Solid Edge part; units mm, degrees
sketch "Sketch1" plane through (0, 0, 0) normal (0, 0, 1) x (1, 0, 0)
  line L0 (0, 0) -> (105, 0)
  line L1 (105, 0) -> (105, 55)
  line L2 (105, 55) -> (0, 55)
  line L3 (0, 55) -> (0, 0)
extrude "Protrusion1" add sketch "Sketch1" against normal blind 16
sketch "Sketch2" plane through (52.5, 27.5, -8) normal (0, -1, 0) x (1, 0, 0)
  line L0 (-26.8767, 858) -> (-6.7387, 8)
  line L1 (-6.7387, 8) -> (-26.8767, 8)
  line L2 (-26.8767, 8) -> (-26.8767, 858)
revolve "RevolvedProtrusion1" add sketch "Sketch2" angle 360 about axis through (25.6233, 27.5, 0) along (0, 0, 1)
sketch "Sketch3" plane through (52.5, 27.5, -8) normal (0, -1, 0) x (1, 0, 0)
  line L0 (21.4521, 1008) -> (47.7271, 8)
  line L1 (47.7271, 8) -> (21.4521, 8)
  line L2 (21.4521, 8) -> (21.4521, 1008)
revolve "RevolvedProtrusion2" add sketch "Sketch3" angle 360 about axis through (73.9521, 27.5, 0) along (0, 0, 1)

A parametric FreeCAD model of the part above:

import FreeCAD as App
import Part
import Sketcher

V = App.Vector
Q = App.Units.Quantity

doc = App.newDocument("Part")
body = doc.addObject("PartDesign::Body", "Body")

# Sketch on XY plane
sketch1 = doc.addObject("Sketcher::SketchObject", "Sketch")
body.addObject(sketch1)
sketch1.AttachmentSupport = (doc.XY_Plane, [""])
sketch1.MapMode = "FlatFace"
sketch1.addGeometry(Part.LineSegment(V(0, 55, 0), V(0, 0, 0)), False)
sketch1.addGeometry(Part.LineSegment(V(0, 0, 0), V(105, 0, 0)), False)
sketch1.addGeometry(Part.LineSegment(V(105, 0, 0), V(105, 55, 0)), False)
sketch1.addGeometry(Part.LineSegment(V(105, 55, 0), V(0, 55, 0)), False)
sketch1.addConstraint(Sketcher.Constraint("Coincident", 0, 2, 1, 1))
sketch1.addConstraint(Sketcher.Constraint("Coincident", 1, 2, 2, 1))
sketch1.addConstraint(Sketcher.Constraint("Coincident", 2, 2, 3, 1))
sketch1.addConstraint(Sketcher.Constraint("Coincident", 3, 2, 0, 1))
sketch1.addConstraint(Sketcher.Constraint("Vertical", 0))
sketch1.addConstraint(Sketcher.Constraint("Horizontal", 1))
sketch1.addConstraint(Sketcher.Constraint("Vertical", 2))
sketch1.addConstraint(Sketcher.Constraint("Horizontal", 3))
sketch1.addConstraint(Sketcher.Constraint("Coincident", 0, 2, -1, 1))
sketch1.addConstraint(Sketcher.Constraint("DistanceX", 1, 1, 1, 2, Q("105 mm")))
sketch1.addConstraint(Sketcher.Constraint("DistanceY", 0, 2, 0, 1, Q("55 mm")))
pad1 = doc.addObject("PartDesign::Pad", "Pad")
body.addObject(pad1)
pad1.Profile = sketch1
pad1.Length = 16
pad1.Reversed = True

# Sketch on XZ plane
sketch2 = doc.addObject("Sketcher::SketchObject", "Sketch001")
body.addObject(sketch2)
sketch2.AttachmentSupport = (doc.XZ_Plane, [""])
sketch2.MapMode = "FlatFace"
sketch2.AttachmentOffset = App.Placement(V(0, 0, -27.5), App.Rotation())
sketch2.addGeometry(Part.LineSegment(V(46, 0, 0), V(26, 850, 0)), False)
sketch2.addGeometry(Part.LineSegment(V(26, 850, 0), V(26, 0, 0)), False)
sketch2.addGeometry(Part.LineSegment(V(26, 0, 0), V(46, 0, 0)), False)
sketch2.addGeometry(Part.LineSegment(V(26, 0, 0), V(26, 850, 0)), True)  # axis
sketch2.addConstraint(Sketcher.Constraint("Coincident", 0, 2, 1, 1))
sketch2.addConstraint(Sketcher.Constraint("Coincident", 1, 2, 2, 1))
sketch2.addConstraint(Sketcher.Constraint("Coincident", 2, 2, 0, 1))
sketch2.addConstraint(Sketcher.Constraint("Vertical", 1))
sketch2.addConstraint(Sketcher.Constraint("Horizontal", 2))
sketch2.addConstraint(Sketcher.Constraint("Vertical", 3))
sketch2.addConstraint(Sketcher.Constraint("Coincident", 3, 1, 1, 2))
sketch2.addConstraint(Sketcher.Constraint("PointOnObject", 1, 2, -1))
sketch2.addConstraint(Sketcher.Constraint("Equal", 1, 3))
sketch2.addConstraint(Sketcher.Constraint("DistanceY", 1, 2, 1, 1, Q("850 mm")))
sketch2.addConstraint(Sketcher.Constraint("DistanceX", 2, 1, 2, 2, Q("20.138 mm")))
sketch2.addConstraint(Sketcher.Constraint("DistanceX", -1, 1, 0, 2, Q("25.6233 mm")))
revolution = doc.addObject("PartDesign::Revolution", "Revolution")
body.addObject(revolution)
revolution.Profile = sketch2
revolution.ReferenceAxis = (sketch2, ["Axis0"])
revolution.Angle = 360

# Sketch on XZ plane
sketch3 = doc.addObject("Sketcher::SketchObject", "Sketch002")
body.addObject(sketch3)
sketch3.AttachmentSupport = (doc.XZ_Plane, [""])
sketch3.MapMode = "FlatFace"
sketch3.AttachmentOffset = App.Placement(V(0, 0, -27.5), App.Rotation())
sketch3.addGeometry(Part.LineSegment(V(100, 0, 0), V(74, 1000, 0)), False)
sketch3.addGeometry(Part.LineSegment(V(74, 1000, 0), V(74, 0, 0)), False)
sketch3.addGeometry(Part.LineSegment(V(74, 0, 0), V(100, 0, 0)), False)
sketch3.addGeometry(Part.LineSegment(V(74, 0, 0), V(74, 1000, 0)), True)  # axis
sketch3.addConstraint(Sketcher.Constraint("Coincident", 0, 2, 1, 1))
sketch3.addConstraint(Sketcher.Constraint("Coincident", 1, 2, 2, 1))
sketch3.addConstraint(Sketcher.Constraint("Coincident", 2, 2, 0, 1))
sketch3.addConstraint(Sketcher.Constraint("Vertical", 1))
sketch3.addConstraint(Sketcher.Constraint("Horizontal", 2))
sketch3.addConstraint(Sketcher.Constraint("Vertical", 3))
sketch3.addConstraint(Sketcher.Constraint("Coincident", 3, 1, 1, 2))
sketch3.addConstraint(Sketcher.Constraint("PointOnObject", 1, 2, -1))
sketch3.addConstraint(Sketcher.Constraint("Equal", 1, 3))
sketch3.addConstraint(Sketcher.Constraint("DistanceY", 1, 2, 1, 1, Q("1000 mm")))
sketch3.addConstraint(Sketcher.Constraint("DistanceX", 2, 1, 2, 2, Q("26.275 mm")))
sketch3.addConstraint(Sketcher.Constraint("DistanceX", -1, 1, 0, 2, Q("73.952 mm")))
revolution2 = doc.addObject("PartDesign::Revolution", "Revolution001")
body.addObject(revolution2)
revolution2.Profile = sketch3
revolution2.ReferenceAxis = (sketch3, ["Axis0"])
revolution2.Angle = 360

doc.recompute()
